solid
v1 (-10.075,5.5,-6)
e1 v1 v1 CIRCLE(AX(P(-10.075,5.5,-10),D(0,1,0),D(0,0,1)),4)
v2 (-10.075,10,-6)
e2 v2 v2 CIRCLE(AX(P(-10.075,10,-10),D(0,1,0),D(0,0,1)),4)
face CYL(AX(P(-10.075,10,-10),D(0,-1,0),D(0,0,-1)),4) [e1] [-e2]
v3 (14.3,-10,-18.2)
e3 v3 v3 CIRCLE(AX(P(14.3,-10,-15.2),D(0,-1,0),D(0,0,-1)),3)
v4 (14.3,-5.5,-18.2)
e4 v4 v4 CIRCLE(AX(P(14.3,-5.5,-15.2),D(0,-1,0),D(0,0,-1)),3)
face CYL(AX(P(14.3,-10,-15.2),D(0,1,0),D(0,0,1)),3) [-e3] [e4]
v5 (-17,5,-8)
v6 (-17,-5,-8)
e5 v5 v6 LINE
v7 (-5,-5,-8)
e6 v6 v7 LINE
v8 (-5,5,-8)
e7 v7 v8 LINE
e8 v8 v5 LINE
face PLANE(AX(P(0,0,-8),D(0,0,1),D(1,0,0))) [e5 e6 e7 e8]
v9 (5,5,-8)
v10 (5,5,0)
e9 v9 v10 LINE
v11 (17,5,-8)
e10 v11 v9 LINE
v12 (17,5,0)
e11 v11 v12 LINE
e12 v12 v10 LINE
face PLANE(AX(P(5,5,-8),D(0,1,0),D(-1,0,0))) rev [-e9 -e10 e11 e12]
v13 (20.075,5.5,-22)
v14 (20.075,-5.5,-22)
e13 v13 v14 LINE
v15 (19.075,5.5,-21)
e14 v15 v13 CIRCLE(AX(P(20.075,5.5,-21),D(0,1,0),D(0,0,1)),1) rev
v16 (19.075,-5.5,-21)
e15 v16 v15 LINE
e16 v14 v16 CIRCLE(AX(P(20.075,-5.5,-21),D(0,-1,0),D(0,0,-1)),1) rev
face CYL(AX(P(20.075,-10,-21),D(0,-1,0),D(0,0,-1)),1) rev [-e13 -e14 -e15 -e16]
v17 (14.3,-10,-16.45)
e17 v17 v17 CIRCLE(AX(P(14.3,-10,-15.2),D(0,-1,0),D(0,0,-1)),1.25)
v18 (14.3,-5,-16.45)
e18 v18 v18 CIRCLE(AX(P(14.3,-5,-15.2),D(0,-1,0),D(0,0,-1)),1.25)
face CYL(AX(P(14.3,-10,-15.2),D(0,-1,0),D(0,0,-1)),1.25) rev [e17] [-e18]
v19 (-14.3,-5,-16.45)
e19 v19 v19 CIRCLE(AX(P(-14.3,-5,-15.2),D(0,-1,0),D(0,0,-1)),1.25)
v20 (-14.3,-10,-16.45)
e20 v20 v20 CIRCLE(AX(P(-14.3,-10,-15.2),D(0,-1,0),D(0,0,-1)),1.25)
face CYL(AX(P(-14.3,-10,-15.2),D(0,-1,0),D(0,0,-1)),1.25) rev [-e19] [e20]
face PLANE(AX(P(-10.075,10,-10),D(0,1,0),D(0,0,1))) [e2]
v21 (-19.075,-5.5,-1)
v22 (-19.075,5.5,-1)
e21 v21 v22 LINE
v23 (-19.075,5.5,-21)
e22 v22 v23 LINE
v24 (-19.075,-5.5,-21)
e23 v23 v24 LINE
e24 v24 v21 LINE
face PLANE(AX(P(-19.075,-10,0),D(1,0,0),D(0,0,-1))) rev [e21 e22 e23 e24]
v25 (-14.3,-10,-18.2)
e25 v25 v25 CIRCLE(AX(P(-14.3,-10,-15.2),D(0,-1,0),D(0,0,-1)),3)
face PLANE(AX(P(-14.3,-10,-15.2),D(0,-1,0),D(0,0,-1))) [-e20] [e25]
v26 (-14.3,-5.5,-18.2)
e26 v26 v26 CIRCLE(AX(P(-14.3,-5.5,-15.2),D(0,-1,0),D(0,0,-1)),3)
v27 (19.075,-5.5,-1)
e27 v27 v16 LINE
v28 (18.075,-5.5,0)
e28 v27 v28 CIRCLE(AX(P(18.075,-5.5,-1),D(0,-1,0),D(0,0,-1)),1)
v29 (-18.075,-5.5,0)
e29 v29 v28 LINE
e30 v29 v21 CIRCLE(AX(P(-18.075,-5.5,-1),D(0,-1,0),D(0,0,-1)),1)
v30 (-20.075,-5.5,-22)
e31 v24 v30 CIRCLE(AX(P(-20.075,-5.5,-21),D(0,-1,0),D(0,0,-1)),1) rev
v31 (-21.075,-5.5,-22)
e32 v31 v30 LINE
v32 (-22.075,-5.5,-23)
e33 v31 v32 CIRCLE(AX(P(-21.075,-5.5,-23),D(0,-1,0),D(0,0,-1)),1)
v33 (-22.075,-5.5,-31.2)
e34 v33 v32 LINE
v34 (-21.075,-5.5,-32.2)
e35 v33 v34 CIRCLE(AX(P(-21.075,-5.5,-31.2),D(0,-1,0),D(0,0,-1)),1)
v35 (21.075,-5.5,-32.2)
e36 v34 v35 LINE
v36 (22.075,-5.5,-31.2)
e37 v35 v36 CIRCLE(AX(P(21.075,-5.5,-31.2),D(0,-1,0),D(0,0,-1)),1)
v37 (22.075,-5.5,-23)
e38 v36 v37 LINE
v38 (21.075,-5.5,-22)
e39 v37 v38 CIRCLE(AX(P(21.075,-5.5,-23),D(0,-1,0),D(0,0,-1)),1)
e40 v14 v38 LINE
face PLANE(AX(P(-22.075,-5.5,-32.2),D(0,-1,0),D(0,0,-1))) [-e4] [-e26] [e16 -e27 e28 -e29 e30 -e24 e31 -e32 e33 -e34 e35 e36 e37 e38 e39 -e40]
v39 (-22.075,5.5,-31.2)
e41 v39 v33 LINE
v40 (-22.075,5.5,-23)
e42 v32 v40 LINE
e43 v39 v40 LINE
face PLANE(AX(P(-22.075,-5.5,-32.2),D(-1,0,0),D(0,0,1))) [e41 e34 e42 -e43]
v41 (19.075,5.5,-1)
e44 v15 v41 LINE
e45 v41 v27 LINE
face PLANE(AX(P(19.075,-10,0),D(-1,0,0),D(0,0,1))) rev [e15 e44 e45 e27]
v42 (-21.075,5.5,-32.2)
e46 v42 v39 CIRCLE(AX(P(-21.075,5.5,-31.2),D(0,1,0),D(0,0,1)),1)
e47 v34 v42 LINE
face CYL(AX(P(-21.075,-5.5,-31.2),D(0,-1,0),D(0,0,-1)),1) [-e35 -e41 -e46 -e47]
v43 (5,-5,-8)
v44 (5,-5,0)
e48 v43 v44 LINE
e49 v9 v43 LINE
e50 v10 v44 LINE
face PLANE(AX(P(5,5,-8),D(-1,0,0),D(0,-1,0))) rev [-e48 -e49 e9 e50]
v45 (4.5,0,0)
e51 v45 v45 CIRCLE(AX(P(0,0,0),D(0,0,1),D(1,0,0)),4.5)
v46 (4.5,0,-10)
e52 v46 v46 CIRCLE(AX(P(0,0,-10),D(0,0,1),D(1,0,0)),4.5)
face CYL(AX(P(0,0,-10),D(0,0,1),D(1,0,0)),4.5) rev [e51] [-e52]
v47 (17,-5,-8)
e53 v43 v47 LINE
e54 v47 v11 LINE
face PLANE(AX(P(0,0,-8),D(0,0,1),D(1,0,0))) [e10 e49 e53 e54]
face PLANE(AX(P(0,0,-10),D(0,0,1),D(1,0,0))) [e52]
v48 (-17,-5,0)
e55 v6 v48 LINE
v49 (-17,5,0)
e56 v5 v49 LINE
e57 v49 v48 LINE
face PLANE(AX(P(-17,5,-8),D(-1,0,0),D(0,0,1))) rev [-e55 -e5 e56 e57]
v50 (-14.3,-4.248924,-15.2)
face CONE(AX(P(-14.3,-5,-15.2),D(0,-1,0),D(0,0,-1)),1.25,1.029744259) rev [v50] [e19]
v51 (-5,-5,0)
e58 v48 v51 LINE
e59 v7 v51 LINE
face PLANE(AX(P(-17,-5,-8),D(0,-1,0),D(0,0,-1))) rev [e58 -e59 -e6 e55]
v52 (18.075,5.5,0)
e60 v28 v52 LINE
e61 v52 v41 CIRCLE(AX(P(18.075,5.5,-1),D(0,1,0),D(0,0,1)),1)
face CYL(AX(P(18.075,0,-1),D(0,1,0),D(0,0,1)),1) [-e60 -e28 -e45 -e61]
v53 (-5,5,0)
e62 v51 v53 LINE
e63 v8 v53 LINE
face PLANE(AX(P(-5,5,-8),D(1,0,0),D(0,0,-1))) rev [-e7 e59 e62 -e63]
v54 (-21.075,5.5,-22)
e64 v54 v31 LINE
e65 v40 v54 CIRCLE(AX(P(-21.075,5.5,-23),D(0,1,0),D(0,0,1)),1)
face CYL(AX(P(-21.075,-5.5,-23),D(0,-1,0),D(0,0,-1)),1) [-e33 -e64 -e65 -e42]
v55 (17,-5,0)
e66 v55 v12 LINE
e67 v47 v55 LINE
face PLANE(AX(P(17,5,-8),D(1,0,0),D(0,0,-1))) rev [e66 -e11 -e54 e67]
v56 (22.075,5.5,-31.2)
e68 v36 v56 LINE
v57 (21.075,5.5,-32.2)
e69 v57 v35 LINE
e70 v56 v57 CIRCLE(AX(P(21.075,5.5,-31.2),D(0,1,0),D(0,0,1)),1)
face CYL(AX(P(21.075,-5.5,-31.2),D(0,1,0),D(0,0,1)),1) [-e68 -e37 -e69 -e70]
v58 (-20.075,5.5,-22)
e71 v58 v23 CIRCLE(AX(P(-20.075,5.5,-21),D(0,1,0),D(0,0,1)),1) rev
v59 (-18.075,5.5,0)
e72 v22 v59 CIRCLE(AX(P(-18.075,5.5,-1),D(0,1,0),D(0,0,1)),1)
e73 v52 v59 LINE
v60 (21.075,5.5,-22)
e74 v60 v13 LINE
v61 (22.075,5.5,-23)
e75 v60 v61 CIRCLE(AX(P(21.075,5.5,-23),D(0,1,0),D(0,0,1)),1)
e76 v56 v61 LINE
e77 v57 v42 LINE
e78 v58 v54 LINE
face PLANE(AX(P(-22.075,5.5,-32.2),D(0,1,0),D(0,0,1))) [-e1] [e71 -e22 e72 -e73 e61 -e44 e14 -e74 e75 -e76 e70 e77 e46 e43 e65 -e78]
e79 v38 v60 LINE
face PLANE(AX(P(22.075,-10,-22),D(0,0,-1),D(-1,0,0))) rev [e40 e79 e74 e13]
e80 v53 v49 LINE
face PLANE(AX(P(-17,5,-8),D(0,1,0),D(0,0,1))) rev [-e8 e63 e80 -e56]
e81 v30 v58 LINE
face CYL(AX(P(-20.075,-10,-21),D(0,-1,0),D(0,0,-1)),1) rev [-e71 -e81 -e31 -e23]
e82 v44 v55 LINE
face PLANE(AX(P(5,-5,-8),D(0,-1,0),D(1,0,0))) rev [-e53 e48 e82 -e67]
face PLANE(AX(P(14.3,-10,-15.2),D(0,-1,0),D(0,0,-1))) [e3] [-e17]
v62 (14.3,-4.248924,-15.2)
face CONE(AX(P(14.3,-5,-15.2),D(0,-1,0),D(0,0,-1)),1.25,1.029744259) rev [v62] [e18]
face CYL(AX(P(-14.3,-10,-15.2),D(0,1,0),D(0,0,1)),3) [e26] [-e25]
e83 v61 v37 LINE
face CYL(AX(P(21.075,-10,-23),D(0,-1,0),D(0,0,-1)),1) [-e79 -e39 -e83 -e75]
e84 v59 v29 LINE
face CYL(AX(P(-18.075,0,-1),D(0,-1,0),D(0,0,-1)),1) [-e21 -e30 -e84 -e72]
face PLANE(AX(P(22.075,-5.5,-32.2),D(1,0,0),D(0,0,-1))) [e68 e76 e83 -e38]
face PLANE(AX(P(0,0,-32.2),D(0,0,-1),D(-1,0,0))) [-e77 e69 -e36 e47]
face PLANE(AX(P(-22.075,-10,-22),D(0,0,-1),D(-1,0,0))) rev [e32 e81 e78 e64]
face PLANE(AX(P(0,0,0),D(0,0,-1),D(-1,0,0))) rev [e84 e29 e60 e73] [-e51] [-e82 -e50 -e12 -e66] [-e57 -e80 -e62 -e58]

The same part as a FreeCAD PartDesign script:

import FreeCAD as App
import Part
import Sketcher
Q = App.Units.Quantity


def edges_at(feature, points):
    """Names of the edges that pass closest to the given points."""
    edges = feature.Shape.Edges
    near = lambda p: min(range(len(edges)), key=lambda i: edges[i].distToShape(Part.Vertex(*p))[0])
    return sorted({f"Edge{near(p) + 1}" for p in points})

doc = App.newDocument("Part")
body = doc.addObject("PartDesign::Body", "Body")

# Sketch on XY plane
sketch1 = body.newObject("Sketcher::SketchObject", "Sketch")
sketch1.AttachmentSupport = (doc.getObject("XY_Plane"), [""])
sketch1.MapMode = "FlatFace"
sketch1.addGeometry(Part.LineSegment(App.Vector(-22, 6, 0), App.Vector(-22, -6, 0)), False)
sketch1.addGeometry(Part.LineSegment(App.Vector(-22, -6, 0), App.Vector(22, -6, 0)), False)
sketch1.addGeometry(Part.LineSegment(App.Vector(22, -6, 0), App.Vector(22, 6, 0)), False)
sketch1.addGeometry(Part.LineSegment(App.Vector(22, 6, 0), App.Vector(-22, 6, 0)), False)
sketch1.addConstraint(Sketcher.Constraint("Coincident", 0, 2, 1, 1))
sketch1.addConstraint(Sketcher.Constraint("Coincident", 1, 2, 2, 1))
sketch1.addConstraint(Sketcher.Constraint("Coincident", 2, 2, 3, 1))
sketch1.addConstraint(Sketcher.Constraint("Coincident", 3, 2, 0, 1))
sketch1.addConstraint(Sketcher.Constraint("Vertical", 0))
sketch1.addConstraint(Sketcher.Constraint("Horizontal", 1))
sketch1.addConstraint(Sketcher.Constraint("Vertical", 2))
sketch1.addConstraint(Sketcher.Constraint("Horizontal", 3))
sketch1.addConstraint(Sketcher.Constraint("Symmetric", 0, 2, 2, 2, -1, 1))
sketch1.addConstraint(Sketcher.Constraint("DistanceY", 0, 2, 0, 1, Q("11 mm")))
sketch1.addConstraint(Sketcher.Constraint("DistanceX", 1, 1, 1, 2, Q("44.15 mm")))
pad1 = body.newObject("PartDesign::Pad", "Pad")
pad1.Profile = sketch1
pad1.Length = 32.2
pad1.Reversed = True

# Sketch on XZ plane
sketch2 = body.newObject("Sketcher::SketchObject", "Sketch001")
sketch2.AttachmentSupport = (doc.getObject("XZ_Plane"), [""])
sketch2.MapMode = "FlatFace"
sketch2.AttachmentOffset = App.Placement(App.Vector(0, 0, 5.5), App.Rotation())
sketch2.addGeometry(Part.Circle(App.Vector(-14.3, -15.2, 0), App.Vector(0, 0, 1), 3), False)
sketch2.addGeometry(Part.Circle(App.Vector(14.3, -15.2, 0), App.Vector(0, 0, 1), 3), False)
sketch2.addConstraint(Sketcher.Constraint("Equal", 0, 1))
sketch2.addConstraint(Sketcher.Constraint("Symmetric", 0, 3, 1, 3, -2))
sketch2.addConstraint(Sketcher.Constraint("Diameter", 0, Q("6 mm")))
sketch2.addConstraint(Sketcher.Constraint("DistanceX", 0, 3, -1, 1, Q("14.3 mm")))
sketch2.addConstraint(Sketcher.Constraint("DistanceY", 0, 3, -1, 1, Q("15.2 mm")))
pad2 = body.newObject("PartDesign::Pad", "Pad001")
pad2.Profile = sketch2
pad2.Length = 4.5

# Sketch on XZ plane
sketch3 = body.newObject("Sketcher::SketchObject", "Sketch002")
sketch3.AttachmentSupport = (doc.getObject("XZ_Plane"), [""])
sketch3.MapMode = "FlatFace"
sketch3.AttachmentOffset = App.Placement(App.Vector(0, 0, 10), App.Rotation())
sketch3.addGeometry(Part.Circle(App.Vector(-14.3, -15.2, 0), App.Vector(0, 0, 1), 1.2), False)
sketch3.addGeometry(Part.Circle(App.Vector(14.3, -15.2, 0), App.Vector(0, 0, 1), 1.2), False)
sketch3.addConstraint(Sketcher.Constraint("Equal", 0, 1))
sketch3.addConstraint(Sketcher.Constraint("Symmetric", 0, 3, 1, 3, -2))
sketch3.addConstraint(Sketcher.Constraint("Diameter", 0, Q("2.5 mm")))
sketch3.addConstraint(Sketcher.Constraint("DistanceX", 0, 3, -1, 1, Q("14.3 mm")))
sketch3.addConstraint(Sketcher.Constraint("DistanceY", 0, 3, -1, 1, Q("15.2 mm")))
doc.recompute()
hole = body.newObject("PartDesign::Hole", "Hole")
hole.Profile = sketch3
hole.ThreadType = "None"
hole.Diameter = 2.5
hole.DepthType = "Dimension"
hole.Depth = 5
hole.DrillPoint = "Angled"
hole.DrillPointAngle = 118

# Sketch on XZ plane
sketch4 = body.newObject("Sketcher::SketchObject", "Sketch003")
sketch4.AttachmentSupport = (doc.getObject("XZ_Plane"), [""])
sketch4.MapMode = "FlatFace"
sketch4.AttachmentOffset = App.Placement(App.Vector(0, 0, -5.5), App.Rotation())
sketch4.addGeometry(Part.Circle(App.Vector(-10.1, -10, 0), App.Vector(0, 0, 1), 4), False)
sketch4.addConstraint(Sketcher.Constraint("Diameter", 0, Q("8 mm")))
sketch4.addConstraint(Sketcher.Constraint("DistanceY", 0, 3, -1, 1, Q("10 mm")))
sketch4.addConstraint(Sketcher.Constraint("DistanceX", 0, 3, -1, 1, Q("10.075 mm")))
pad3 = body.newObject("PartDesign::Pad", "Pad002")
pad3.Profile = sketch4
pad3.Length = 4.5
pad3.Reversed = True

# Sketch on XZ plane
sketch5 = body.newObject("Sketcher::SketchObject", "Sketch004")
sketch5.AttachmentSupport = (doc.getObject("XZ_Plane"), [""])
sketch5.MapMode = "FlatFace"
sketch5.AttachmentOffset = App.Placement(App.Vector(0, 0, -5.5), App.Rotation())
sketch5.addGeometry(Part.LineSegment(App.Vector(-22.1, -22, 0), App.Vector(-22.1, 0, 0)), False)
sketch5.addGeometry(Part.LineSegment(App.Vector(-22.1, 0, 0), App.Vector(-19.1, 0, 0)), False)
sketch5.addGeometry(Part.LineSegment(App.Vector(-19.1, 0, 0), App.Vector(-19.1, -22, 0)), False)
sketch5.addGeometry(Part.LineSegment(App.Vector(-19.1, -22, 0), App.Vector(-22.1, -22, 0)), False)
sketch5.addGeometry(Part.LineSegment(App.Vector(19.1, -22, 0), App.Vector(19.1, 0, 0)), False)
sketch5.addGeometry(Part.LineSegment(App.Vector(19.1, 0, 0), App.Vector(22.1, 0, 0)), False)
sketch5.addGeometry(Part.LineSegment(App.Vector(22.1, 0, 0), App.Vector(22.1, -22, 0)), False)
sketch5.addGeometry(Part.LineSegment(App.Vector(22.1, -22, 0), App.Vector(19.1, -22, 0)), False)
sketch5.addConstraint(Sketcher.Constraint("Coincident", 0, 2, 1, 1))
sketch5.addConstraint(Sketcher.Constraint("Coincident", 1, 2, 2, 1))
sketch5.addConstraint(Sketcher.Constraint("Coincident", 2, 2, 3, 1))
sketch5.addConstraint(Sketcher.Constraint("Coincident", 3, 2, 0, 1))
sketch5.addConstraint(Sketcher.Constraint("Coincident", 4, 2, 5, 1))
sketch5.addConstraint(Sketcher.Constraint("Coincident", 5, 2, 6, 1))
sketch5.addConstraint(Sketcher.Constraint("Coincident", 6, 2, 7, 1))
sketch5.addConstraint(Sketcher.Constraint("Coincident", 7, 2, 4, 1))
sketch5.addConstraint(Sketcher.Constraint("Vertical", 0))
sketch5.addConstraint(Sketcher.Constraint("Horizontal", 1))
sketch5.addConstraint(Sketcher.Constraint("Vertical", 2))
sketch5.addConstraint(Sketcher.Constraint("Horizontal", 3))
sketch5.addConstraint(Sketcher.Constraint("Vertical", 4))
sketch5.addConstraint(Sketcher.Constraint("Horizontal", 5))
sketch5.addConstraint(Sketcher.Constraint("Vertical", 6))
sketch5.addConstraint(Sketcher.Constraint("Horizontal", 7))
sketch5.addConstraint(Sketcher.Constraint("Symmetric", 1, 2, 4, 2, -1, 1))
sketch5.addConstraint(Sketcher.Constraint("Symmetric", 0, 2, 5, 2, -2))
sketch5.addConstraint(Sketcher.Constraint("Horizontal", 3, 2, 6, 2))
sketch5.addConstraint(Sketcher.Constraint("DistanceX", 1, 1, 1, 2, Q("3 mm")))
sketch5.addConstraint(Sketcher.Constraint("DistanceY", 0, 1, 0, 2, Q("22 mm")))
sketch5.addConstraint(Sketcher.Constraint("DistanceX", 1, 2, 4, 2, Q("38.15 mm")))
pocket1 = body.newObject("PartDesign::Pocket", "Pocket")
pocket1.Profile = sketch5
pocket1.Type = "ThroughAll"
pocket1.Reversed = True

# Sketch on XY plane
sketch6 = body.newObject("Sketcher::SketchObject", "Sketch005")
sketch6.AttachmentSupport = (doc.getObject("XY_Plane"), [""])
sketch6.MapMode = "FlatFace"
sketch6.addGeometry(Part.LineSegment(App.Vector(-17, 5, 0), App.Vector(-17, -5, 0)), False)
sketch6.addGeometry(Part.LineSegment(App.Vector(-17, -5, 0), App.Vector(-5, -5, 0)), False)
sketch6.addGeometry(Part.LineSegment(App.Vector(-5, -5, 0), App.Vector(-5, 5, 0)), False)
sketch6.addGeometry(Part.LineSegment(App.Vector(-5, 5, 0), App.Vector(-17, 5, 0)), False)
sketch6.addGeometry(Part.LineSegment(App.Vector(5, 5, 0), App.Vector(5, -5, 0)), False)
sketch6.addGeometry(Part.LineSegment(App.Vector(5, -5, 0), App.Vector(17, -5, 0)), False)
sketch6.addGeometry(Part.LineSegment(App.Vector(17, -5, 0), App.Vector(17, 5, 0)), False)
sketch6.addGeometry(Part.LineSegment(App.Vector(17, 5, 0), App.Vector(5, 5, 0)), False)
sketch6.addConstraint(Sketcher.Constraint("Coincident", 0, 2, 1, 1))
sketch6.addConstraint(Sketcher.Constraint("Coincident", 1, 2, 2, 1))
sketch6.addConstraint(Sketcher.Constraint("Coincident", 2, 2, 3, 1))
sketch6.addConstraint(Sketcher.Constraint("Coincident", 3, 2, 0, 1))
sketch6.addConstraint(Sketcher.Constraint("Coincident", 4, 2, 5, 1))
sketch6.addConstraint(Sketcher.Constraint("Coincident", 5, 2, 6, 1))
sketch6.addConstraint(Sketcher.Constraint("Coincident", 6, 2, 7, 1))
sketch6.addConstraint(Sketcher.Constraint("Coincident", 7, 2, 4, 1))
sketch6.addConstraint(Sketcher.Constraint("Vertical", 0))
sketch6.addConstraint(Sketcher.Constraint("Horizontal", 1))
sketch6.addConstraint(Sketcher.Constraint("Vertical", 2))
sketch6.addConstraint(Sketcher.Constraint("Horizontal", 3))
sketch6.addConstraint(Sketcher.Constraint("Vertical", 4))
sketch6.addConstraint(Sketcher.Constraint("Horizontal", 5))
sketch6.addConstraint(Sketcher.Constraint("Vertical", 6))
sketch6.addConstraint(Sketcher.Constraint("Horizontal", 7))
sketch6.addConstraint(Sketcher.Constraint("Symmetric", 2, 2, 4, 2, -1, 1))
sketch6.addConstraint(Sketcher.Constraint("Symmetric", 0, 2, 6, 2, -1, 1))
sketch6.addConstraint(Sketcher.Constraint("Horizontal", 1, 2, 4, 2))
sketch6.addConstraint(Sketcher.Constraint("DistanceX", 1, 1, 1, 2, Q("12 mm")))
sketch6.addConstraint(Sketcher.Constraint("DistanceY", 0, 2, 0, 1, Q("10 mm")))
sketch6.addConstraint(Sketcher.Constraint("DistanceX", 0, 2, -1, 1, Q("17 mm")))
pocket2 = body.newObject("PartDesign::Pocket", "Pocket001")
pocket2.Profile = sketch6
pocket2.Length = 8

# Sketch on XY plane
sketch7 = body.newObject("Sketcher::SketchObject", "Sketch006")
sketch7.AttachmentSupport = (doc.getObject("XY_Plane"), [""])
sketch7.MapMode = "FlatFace"
sketch7.addGeometry(Part.Circle(App.Vector(0, 0, 0), App.Vector(0, 0, 1), 4.5), False)
sketch7.addConstraint(Sketcher.Constraint("Coincident", 0, 3, -1, 1))
sketch7.addConstraint(Sketcher.Constraint("Diameter", 0, Q("9 mm")))
pocket3 = body.newObject("PartDesign::Pocket", "Pocket002")
pocket3.Profile = sketch7
pocket3.Length = 10
doc.recompute()

fillet = body.newObject("PartDesign::Fillet", "Fillet")
fillet.Base = (pocket3, edges_at(pocket3, [
    (-22.075, 0, -32.2),
    (19.075, 0, 0),
    (-19.075, 0, 0),
    (22.075, 0, -32.2),
    (-22.075, 0, -22),
    (-19.075, 0, -22),
    (22.075, 0, -22),
    (19.075, 0, -22),
]))
fillet.Radius = 1

doc.recompute()
